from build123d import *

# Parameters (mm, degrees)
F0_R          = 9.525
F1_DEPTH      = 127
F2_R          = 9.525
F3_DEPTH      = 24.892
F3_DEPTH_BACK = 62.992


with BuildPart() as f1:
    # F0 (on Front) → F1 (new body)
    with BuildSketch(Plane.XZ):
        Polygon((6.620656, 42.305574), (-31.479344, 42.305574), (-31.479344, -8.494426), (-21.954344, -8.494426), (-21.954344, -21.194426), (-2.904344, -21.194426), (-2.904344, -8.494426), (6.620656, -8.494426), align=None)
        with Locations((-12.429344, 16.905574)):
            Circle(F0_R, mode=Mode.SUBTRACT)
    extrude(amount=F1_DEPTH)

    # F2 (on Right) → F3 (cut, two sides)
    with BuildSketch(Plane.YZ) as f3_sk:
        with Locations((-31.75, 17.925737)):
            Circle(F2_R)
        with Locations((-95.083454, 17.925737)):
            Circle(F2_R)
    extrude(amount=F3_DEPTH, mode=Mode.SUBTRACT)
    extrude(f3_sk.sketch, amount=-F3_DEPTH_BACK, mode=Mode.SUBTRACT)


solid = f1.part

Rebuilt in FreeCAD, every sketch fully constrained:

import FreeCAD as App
import Part
import Sketcher

V = App.Vector
Q = App.Units.Quantity

doc = App.newDocument("Part")
body = doc.addObject("PartDesign::Body", "Body")

# Sketch on XZ plane
sketch1 = doc.addObject("Sketcher::SketchObject", "Sketch")
body.addObject(sketch1)
sketch1.AttachmentSupport = (doc.XZ_Plane, [""])
sketch1.MapMode = "FlatFace"
sketch1.addGeometry([
    Part.LineSegment(V(7, 42, 0), V(-31, 42, 0)),  # 0
    Part.LineSegment(V(-31, 42, 0), V(-31, -8, 0)),  # 1
    Part.LineSegment(V(-31, -8, 0), V(-22, -8, 0)),  # 2
    Part.LineSegment(V(-22, -8, 0), V(-22, -21, 0)),  # 3
    Part.LineSegment(V(-22, -21, 0), V(-3, -21, 0)),  # 4
    Part.LineSegment(V(-3, -21, 0), V(-3, -8, 0)),  # 5
    Part.LineSegment(V(-3, -8, 0), V(7, -8, 0)),  # 6
    Part.LineSegment(V(7, -8, 0), V(7, 42, 0)),  # 7
    Part.Circle(V(-12, 17, 0), V(0, 0, 1), 10),  # 8
], False)
sketch1.addConstraint([
    Sketcher.Constraint("Coincident", 0, 2, 1, 1),
    Sketcher.Constraint("Coincident", 1, 2, 2, 1),
    Sketcher.Constraint("Coincident", 2, 2, 3, 1),
    Sketcher.Constraint("Coincident", 3, 2, 4, 1),
    Sketcher.Constraint("Coincident", 4, 2, 5, 1),
    Sketcher.Constraint("Coincident", 5, 2, 6, 1),
    Sketcher.Constraint("Coincident", 6, 2, 7, 1),
    Sketcher.Constraint("Coincident", 7, 2, 0, 1),
    Sketcher.Constraint("Horizontal", 0),
    Sketcher.Constraint("Vertical", 1),
    Sketcher.Constraint("Horizontal", 2),
    Sketcher.Constraint("Vertical", 3),
    Sketcher.Constraint("Horizontal", 4),
    Sketcher.Constraint("Vertical", 5),
    Sketcher.Constraint("Horizontal", 6),
    Sketcher.Constraint("Vertical", 7),
    Sketcher.Constraint("Horizontal", 2, 2, 5, 2),
    Sketcher.Constraint("Equal", 2, 6),
    Sketcher.Constraint("Diameter", 8, Q("0.75 in")),
    Sketcher.Constraint("DistanceY", 1, 2, 1, 1, Q("2 in")),
    Sketcher.Constraint("DistanceX", 0, 2, 0, 1, Q("1.5 in")),
    Sketcher.Constraint("DistanceY", 3, 2, 3, 1, Q("0.5 in")),
    Sketcher.Constraint("DistanceY", 8, 3, 0, 2, Q("1 in")),
    Sketcher.Constraint("DistanceX", 4, 1, 4, 2, Q("0.75 in")),
    Sketcher.Constraint("DistanceX", 0, 2, 8, 3, Q("0.75 in")),
    Sketcher.Constraint("DistanceX", 8, 3, -1, 1, 12.429344),
    Sketcher.Constraint("DistanceY", -1, 1, 8, 3, 16.905574),
])
pad1 = doc.addObject("PartDesign::Pad", "Pad")
body.addObject(pad1)
pad1.Profile = sketch1
pad1.Length = Q("5 in")

# Sketch on YZ plane
sketch2 = doc.addObject("Sketcher::SketchObject", "Sketch001")
body.addObject(sketch2)
sketch2.AttachmentSupport = (doc.YZ_Plane, [""])
sketch2.MapMode = "FlatFace"
sketch2.addGeometry([
    Part.Circle(V(-32, 18, 0), V(0, 0, 1), 10),
    Part.Circle(V(-95, 18, 0), V(0, 0, 1), 10),
], False)
sketch2.addConstraint([
    Sketcher.Constraint("Equal", 0, 1),
    Sketcher.Constraint("Horizontal", 0, 3, 1, 3),
    Sketcher.Constraint("Diameter", 0, Q("0.75 in")),
    Sketcher.Constraint("DistanceX", 0, 3, -1, 1, Q("1.25 in")),
    Sketcher.Constraint("DistanceY", -1, 1, 0, 3, 17.925737),
    Sketcher.Constraint("DistanceX", 1, 3, -1, 1, 95.083454),
])
pocket1 = doc.addObject("PartDesign::Pocket", "Pocket")
body.addObject(pocket1)
pocket1.Profile = sketch2
pocket1.Type = "ThroughAll"
pocket1.Midplane = True

doc.recompute()
